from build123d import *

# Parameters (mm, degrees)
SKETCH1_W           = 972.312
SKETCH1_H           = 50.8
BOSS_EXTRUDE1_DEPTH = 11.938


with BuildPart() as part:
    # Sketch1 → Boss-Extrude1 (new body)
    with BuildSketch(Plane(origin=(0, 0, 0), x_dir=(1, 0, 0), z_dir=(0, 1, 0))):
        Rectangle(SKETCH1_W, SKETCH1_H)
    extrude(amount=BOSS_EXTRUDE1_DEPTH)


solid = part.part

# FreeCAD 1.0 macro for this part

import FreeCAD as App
import Part
import Sketcher
Q = App.Units.Quantity


def add_polygon(sketch, points):
    """Adds a closed chain of lines whose ends are joined by coincident constraints."""
    first, n = sketch.GeometryCount, len(points)
    for a, b in zip(points, points[1:] + points[:1]):
        sketch.addGeometry(Part.LineSegment(App.Vector(*a, 0), App.Vector(*b, 0)), False)
    for i in range(n):
        sketch.addConstraint(Sketcher.Constraint("Coincident", first + i, 2, first + (i + 1) % n, 1))

doc = App.newDocument("Part")
body = doc.addObject("PartDesign::Body", "Body")

sketch1 = body.newObject("Sketcher::SketchObject", "Sketch")
sketch1.AttachmentSupport = (doc.getObject("XZ_Plane"), [""])
sketch1.MapMode = "FlatFace"
add_polygon(sketch1, [(-486, -25), (-486, 25), (486, 25), (486, -25)])
sketch1.addConstraint(Sketcher.Constraint("Vertical", 0))
sketch1.addConstraint(Sketcher.Constraint("Horizontal", 1))
sketch1.addConstraint(Sketcher.Constraint("Vertical", 2))
sketch1.addConstraint(Sketcher.Constraint("Horizontal", 3))
sketch1.addConstraint(Sketcher.Constraint("Symmetric", 0, 2, 2, 2, -1, 1))
sketch1.addConstraint(Sketcher.Constraint("DistanceY", 0, 1, 0, 2, Q("2 in")))
sketch1.addConstraint(Sketcher.Constraint("DistanceX", 1, 1, 1, 2, Q("38.28 in")))
pad1 = body.newObject("PartDesign::Pad", "Pad")
pad1.Profile = sketch1
pad1.Length = Q("0.47 in")
pad1.Reversed = True

doc.recompute()
